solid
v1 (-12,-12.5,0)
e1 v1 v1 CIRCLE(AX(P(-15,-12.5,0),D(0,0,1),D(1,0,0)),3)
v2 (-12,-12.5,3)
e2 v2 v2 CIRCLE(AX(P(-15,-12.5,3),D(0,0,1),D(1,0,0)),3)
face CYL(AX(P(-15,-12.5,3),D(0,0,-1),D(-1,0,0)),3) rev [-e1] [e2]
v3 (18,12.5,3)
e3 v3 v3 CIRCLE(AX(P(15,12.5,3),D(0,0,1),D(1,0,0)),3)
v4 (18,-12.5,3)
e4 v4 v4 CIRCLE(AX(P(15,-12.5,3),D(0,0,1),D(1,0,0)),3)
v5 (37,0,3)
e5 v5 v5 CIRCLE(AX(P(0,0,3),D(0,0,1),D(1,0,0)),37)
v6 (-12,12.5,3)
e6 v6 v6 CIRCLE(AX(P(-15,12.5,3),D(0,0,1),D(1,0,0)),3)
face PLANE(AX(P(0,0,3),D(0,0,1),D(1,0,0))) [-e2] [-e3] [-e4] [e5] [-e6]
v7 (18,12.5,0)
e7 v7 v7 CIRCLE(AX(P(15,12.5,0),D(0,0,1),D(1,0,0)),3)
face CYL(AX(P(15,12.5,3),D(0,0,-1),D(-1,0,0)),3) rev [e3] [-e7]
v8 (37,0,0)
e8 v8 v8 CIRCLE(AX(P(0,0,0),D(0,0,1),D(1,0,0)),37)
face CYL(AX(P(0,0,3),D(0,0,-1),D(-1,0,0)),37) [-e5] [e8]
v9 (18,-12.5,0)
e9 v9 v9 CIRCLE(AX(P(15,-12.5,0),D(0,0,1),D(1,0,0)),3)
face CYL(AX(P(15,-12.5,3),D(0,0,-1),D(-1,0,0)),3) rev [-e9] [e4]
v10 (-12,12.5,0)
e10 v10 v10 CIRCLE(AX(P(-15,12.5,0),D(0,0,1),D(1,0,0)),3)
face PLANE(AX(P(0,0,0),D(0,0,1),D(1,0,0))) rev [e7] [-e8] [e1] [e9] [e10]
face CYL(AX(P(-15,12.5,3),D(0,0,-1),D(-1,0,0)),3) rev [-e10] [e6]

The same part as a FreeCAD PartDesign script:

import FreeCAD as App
import Part
import Sketcher
from FreeCAD import Vector

doc = App.newDocument("Part")
params = doc.addObject("Spreadsheet::Sheet", "Params")
for row, (alias, value) in enumerate([
    ("sketch1_diameter", "74 mm"),
    ("sketch1_diameter2", "6 mm"),
    ("pad1_length", "3 mm"),
], start=1):
    params.set(f"A{row}", alias)
    params.set(f"B{row}", "=" + value)
    params.setAlias(f"B{row}", alias)

body = doc.addObject("PartDesign::Body", "Body")

# Sketch on XY plane
sketch1 = body.newObject("Sketcher::SketchObject", "Sketch")
sketch1.AttachmentSupport = (doc.getObject("XY_Plane"), [""])
sketch1.MapMode = "FlatFace"
sketch1.addGeometry(Part.Circle(Vector(0, 0, 0), Vector(0, 0, 1), 37), False)
sketch1.addGeometry(Part.Circle(Vector(-15, -12.5, 0), Vector(0, 0, 1), 3), False)
sketch1.addGeometry(Part.Circle(Vector(15, -12.5, 0), Vector(0, 0, 1), 3), False)
sketch1.addGeometry(Part.Circle(Vector(-15, 12.5, 0), Vector(0, 0, 1), 3), False)
sketch1.addGeometry(Part.Circle(Vector(15, 12.5, 0), Vector(0, 0, 1), 3), False)
sketch1.addConstraint(Sketcher.Constraint("Coincident", 0, 3, -1, 1))
sketch1.addConstraint(Sketcher.Constraint("Equal", 1, 2))
sketch1.addConstraint(Sketcher.Constraint("Equal", 2, 3))
sketch1.addConstraint(Sketcher.Constraint("Equal", 3, 4))
sketch1.addConstraint(Sketcher.Constraint("Symmetric", 2, 3, 3, 3, -1, 1))
sketch1.addConstraint(Sketcher.Constraint("Symmetric", 1, 3, 4, 3, -1, 1))
sketch1.addConstraint(Sketcher.Constraint("Symmetric", 1, 3, 2, 3, -2))
sketch1.addConstraint(Sketcher.Constraint("Diameter", 0, 74.0))
sketch1.addConstraint(Sketcher.Constraint("Diameter", 1, 6.0))
sketch1.addConstraint(Sketcher.Constraint("DistanceX", 1, 3, -1, 1, 15.0))
sketch1.addConstraint(Sketcher.Constraint("DistanceY", 1, 3, 3, 3, 25.0))
sketch1.setExpression("Constraints[7]", "Params.sketch1_diameter")
sketch1.setExpression("Constraints[8]", "Params.sketch1_diameter2")
pad1 = body.newObject("PartDesign::Pad", "Pad")
pad1.Profile = sketch1
pad1.setExpression("Length", "Params.pad1_length")

doc.recompute()
